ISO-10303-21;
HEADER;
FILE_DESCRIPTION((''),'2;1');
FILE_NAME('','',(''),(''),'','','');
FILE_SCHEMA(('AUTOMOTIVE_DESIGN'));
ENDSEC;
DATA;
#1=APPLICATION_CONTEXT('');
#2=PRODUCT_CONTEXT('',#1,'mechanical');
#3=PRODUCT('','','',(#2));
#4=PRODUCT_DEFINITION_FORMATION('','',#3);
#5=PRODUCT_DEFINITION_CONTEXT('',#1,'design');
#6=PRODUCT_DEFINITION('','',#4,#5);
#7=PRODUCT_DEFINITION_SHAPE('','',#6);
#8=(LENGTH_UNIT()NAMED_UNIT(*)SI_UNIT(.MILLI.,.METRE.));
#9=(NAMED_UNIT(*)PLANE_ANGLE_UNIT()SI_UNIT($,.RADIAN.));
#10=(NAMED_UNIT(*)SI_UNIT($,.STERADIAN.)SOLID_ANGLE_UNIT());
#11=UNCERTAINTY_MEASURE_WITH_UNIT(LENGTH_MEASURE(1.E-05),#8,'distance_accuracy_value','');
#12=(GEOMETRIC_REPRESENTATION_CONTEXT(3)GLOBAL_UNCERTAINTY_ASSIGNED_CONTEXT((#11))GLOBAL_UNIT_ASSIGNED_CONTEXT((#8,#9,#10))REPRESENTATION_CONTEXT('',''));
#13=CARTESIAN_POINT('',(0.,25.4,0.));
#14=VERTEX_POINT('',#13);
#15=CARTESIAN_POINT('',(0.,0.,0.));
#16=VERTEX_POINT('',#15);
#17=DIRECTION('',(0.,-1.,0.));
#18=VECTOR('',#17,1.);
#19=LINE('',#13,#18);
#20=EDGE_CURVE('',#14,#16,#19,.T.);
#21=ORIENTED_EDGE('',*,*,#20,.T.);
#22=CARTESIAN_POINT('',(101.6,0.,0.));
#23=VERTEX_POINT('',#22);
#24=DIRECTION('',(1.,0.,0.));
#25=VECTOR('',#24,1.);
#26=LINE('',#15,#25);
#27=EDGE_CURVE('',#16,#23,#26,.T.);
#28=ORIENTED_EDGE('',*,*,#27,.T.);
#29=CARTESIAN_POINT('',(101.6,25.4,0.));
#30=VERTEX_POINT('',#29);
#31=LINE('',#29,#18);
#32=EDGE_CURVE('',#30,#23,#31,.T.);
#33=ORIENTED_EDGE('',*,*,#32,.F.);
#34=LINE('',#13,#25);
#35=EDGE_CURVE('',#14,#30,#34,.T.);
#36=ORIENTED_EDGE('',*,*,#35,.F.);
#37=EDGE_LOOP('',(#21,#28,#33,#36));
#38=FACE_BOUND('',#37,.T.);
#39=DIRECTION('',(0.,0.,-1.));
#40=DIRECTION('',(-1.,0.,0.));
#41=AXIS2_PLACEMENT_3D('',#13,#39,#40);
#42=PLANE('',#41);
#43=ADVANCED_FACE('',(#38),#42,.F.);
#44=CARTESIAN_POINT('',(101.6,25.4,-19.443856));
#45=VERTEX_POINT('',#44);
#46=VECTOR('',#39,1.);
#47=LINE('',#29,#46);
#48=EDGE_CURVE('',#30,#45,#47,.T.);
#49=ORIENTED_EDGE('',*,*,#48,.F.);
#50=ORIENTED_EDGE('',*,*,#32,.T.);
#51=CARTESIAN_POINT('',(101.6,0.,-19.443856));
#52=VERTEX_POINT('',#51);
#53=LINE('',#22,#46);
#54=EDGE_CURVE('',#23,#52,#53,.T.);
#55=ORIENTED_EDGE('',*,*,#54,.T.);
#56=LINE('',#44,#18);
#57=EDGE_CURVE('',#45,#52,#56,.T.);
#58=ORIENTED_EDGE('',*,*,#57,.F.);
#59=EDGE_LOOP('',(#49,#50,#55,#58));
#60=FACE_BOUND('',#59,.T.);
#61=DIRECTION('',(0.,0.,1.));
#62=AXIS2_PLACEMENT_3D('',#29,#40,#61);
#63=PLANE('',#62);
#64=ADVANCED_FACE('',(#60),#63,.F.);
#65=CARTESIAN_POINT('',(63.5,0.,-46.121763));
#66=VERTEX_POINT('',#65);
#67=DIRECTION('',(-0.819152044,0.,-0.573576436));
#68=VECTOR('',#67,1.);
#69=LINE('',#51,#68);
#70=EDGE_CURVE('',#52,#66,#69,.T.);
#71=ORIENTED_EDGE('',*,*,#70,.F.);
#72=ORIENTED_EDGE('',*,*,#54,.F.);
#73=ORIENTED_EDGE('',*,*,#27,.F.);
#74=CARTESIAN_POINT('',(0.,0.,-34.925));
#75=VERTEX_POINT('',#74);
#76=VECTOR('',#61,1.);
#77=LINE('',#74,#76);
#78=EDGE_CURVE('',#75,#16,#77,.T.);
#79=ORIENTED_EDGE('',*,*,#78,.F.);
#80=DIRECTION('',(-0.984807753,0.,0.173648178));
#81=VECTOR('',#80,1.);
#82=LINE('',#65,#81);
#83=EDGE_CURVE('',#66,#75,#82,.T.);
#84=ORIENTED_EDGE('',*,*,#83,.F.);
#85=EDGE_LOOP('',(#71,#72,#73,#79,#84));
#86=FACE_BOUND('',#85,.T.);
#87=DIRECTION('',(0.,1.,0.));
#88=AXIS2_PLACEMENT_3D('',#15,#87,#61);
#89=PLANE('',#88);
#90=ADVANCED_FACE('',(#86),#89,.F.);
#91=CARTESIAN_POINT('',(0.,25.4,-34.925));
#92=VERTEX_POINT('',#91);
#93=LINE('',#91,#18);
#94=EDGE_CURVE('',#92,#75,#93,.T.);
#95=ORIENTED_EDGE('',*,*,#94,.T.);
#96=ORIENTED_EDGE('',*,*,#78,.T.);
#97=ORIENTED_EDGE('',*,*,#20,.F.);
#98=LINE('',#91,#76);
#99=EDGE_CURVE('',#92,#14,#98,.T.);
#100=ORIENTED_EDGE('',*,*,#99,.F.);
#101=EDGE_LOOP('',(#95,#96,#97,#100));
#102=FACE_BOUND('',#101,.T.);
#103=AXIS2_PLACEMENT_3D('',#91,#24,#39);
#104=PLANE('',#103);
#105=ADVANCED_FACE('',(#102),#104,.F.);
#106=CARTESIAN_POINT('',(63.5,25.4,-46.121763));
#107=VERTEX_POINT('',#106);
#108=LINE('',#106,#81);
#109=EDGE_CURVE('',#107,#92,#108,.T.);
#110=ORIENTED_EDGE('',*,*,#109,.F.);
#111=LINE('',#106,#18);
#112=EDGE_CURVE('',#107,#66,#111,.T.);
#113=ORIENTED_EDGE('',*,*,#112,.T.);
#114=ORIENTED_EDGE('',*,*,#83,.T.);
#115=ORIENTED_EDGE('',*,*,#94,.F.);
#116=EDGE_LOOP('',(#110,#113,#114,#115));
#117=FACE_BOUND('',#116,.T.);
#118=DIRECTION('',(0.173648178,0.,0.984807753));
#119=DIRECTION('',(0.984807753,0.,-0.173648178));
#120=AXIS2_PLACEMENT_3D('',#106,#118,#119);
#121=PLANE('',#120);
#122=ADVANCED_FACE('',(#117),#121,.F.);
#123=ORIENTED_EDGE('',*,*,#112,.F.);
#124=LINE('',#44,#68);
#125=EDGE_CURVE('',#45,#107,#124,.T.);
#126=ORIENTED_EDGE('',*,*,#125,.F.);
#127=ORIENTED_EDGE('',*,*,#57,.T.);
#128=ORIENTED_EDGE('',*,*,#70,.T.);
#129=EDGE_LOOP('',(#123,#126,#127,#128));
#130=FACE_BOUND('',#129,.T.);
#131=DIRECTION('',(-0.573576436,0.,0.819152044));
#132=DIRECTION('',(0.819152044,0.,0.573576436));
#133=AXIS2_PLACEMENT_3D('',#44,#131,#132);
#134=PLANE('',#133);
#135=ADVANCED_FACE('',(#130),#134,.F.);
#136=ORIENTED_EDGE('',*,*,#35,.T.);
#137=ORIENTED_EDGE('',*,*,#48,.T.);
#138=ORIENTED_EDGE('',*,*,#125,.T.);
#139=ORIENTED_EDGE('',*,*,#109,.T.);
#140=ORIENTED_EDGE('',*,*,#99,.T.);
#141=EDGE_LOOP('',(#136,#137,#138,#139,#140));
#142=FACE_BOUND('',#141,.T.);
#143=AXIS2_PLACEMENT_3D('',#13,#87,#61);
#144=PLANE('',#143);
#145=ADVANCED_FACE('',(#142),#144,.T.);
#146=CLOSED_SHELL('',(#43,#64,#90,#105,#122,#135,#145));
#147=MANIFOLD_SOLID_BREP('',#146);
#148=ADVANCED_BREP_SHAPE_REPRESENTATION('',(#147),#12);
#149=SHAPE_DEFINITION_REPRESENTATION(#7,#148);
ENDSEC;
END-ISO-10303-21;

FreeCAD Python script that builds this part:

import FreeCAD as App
import Part
import Sketcher
from FreeCAD import Vector
Q = App.Units.Quantity

doc = App.newDocument("Part")
body = doc.addObject("PartDesign::Body", "Body")

# Sketch on XZ plane
sketch1 = body.newObject("Sketcher::SketchObject", "Sketch")
sketch1.AttachmentSupport = (doc.getObject("XZ_Plane"), [""])
sketch1.MapMode = "FlatFace"
sketch1.addGeometry([
    Part.LineSegment(Vector(0, 0, 0), Vector(102, 0, 0)),  # 0
    Part.LineSegment(Vector(102, 0, 0), Vector(102, -19, 0)),  # 1
    Part.LineSegment(Vector(102, -19, 0), Vector(64, -46, 0)),  # 2
    Part.LineSegment(Vector(64, -46, 0), Vector(0, -35, 0)),  # 3
    Part.LineSegment(Vector(0, -35, 0), Vector(0, 0, 0)),  # 4
], False)
sketch1.addConstraint([
    Sketcher.Constraint("Coincident", 0, 2, 1, 1),
    Sketcher.Constraint("Coincident", 1, 2, 2, 1),
    Sketcher.Constraint("Coincident", 2, 2, 3, 1),
    Sketcher.Constraint("Coincident", 3, 2, 4, 1),
    Sketcher.Constraint("Coincident", 4, 2, 0, 1),
    Sketcher.Constraint("Horizontal", 0),
    Sketcher.Constraint("Vertical", 1),
    Sketcher.Constraint("Vertical", 4),
    Sketcher.Constraint("Coincident", 4, 2, -1, 1),
    Sketcher.Constraint("DistanceX", 0, 1, 0, 2, Q("4 in")),
    Sketcher.Constraint("Angle", 2, Q("-145 deg")),
    Sketcher.Constraint("Angle", 3, Q("170 deg")),
    Sketcher.Constraint("DistanceX", -1, 1, 2, 2, Q("2.5 in")),
    Sketcher.Constraint("DistanceY", 4, 1, 4, 2, Q("1.375 in")),
])
pad1 = body.newObject("PartDesign::Pad", "Pad")
pad1.Profile = sketch1
pad1.Length = Q("1 in")
pad1.Reversed = True

doc.recompute()
